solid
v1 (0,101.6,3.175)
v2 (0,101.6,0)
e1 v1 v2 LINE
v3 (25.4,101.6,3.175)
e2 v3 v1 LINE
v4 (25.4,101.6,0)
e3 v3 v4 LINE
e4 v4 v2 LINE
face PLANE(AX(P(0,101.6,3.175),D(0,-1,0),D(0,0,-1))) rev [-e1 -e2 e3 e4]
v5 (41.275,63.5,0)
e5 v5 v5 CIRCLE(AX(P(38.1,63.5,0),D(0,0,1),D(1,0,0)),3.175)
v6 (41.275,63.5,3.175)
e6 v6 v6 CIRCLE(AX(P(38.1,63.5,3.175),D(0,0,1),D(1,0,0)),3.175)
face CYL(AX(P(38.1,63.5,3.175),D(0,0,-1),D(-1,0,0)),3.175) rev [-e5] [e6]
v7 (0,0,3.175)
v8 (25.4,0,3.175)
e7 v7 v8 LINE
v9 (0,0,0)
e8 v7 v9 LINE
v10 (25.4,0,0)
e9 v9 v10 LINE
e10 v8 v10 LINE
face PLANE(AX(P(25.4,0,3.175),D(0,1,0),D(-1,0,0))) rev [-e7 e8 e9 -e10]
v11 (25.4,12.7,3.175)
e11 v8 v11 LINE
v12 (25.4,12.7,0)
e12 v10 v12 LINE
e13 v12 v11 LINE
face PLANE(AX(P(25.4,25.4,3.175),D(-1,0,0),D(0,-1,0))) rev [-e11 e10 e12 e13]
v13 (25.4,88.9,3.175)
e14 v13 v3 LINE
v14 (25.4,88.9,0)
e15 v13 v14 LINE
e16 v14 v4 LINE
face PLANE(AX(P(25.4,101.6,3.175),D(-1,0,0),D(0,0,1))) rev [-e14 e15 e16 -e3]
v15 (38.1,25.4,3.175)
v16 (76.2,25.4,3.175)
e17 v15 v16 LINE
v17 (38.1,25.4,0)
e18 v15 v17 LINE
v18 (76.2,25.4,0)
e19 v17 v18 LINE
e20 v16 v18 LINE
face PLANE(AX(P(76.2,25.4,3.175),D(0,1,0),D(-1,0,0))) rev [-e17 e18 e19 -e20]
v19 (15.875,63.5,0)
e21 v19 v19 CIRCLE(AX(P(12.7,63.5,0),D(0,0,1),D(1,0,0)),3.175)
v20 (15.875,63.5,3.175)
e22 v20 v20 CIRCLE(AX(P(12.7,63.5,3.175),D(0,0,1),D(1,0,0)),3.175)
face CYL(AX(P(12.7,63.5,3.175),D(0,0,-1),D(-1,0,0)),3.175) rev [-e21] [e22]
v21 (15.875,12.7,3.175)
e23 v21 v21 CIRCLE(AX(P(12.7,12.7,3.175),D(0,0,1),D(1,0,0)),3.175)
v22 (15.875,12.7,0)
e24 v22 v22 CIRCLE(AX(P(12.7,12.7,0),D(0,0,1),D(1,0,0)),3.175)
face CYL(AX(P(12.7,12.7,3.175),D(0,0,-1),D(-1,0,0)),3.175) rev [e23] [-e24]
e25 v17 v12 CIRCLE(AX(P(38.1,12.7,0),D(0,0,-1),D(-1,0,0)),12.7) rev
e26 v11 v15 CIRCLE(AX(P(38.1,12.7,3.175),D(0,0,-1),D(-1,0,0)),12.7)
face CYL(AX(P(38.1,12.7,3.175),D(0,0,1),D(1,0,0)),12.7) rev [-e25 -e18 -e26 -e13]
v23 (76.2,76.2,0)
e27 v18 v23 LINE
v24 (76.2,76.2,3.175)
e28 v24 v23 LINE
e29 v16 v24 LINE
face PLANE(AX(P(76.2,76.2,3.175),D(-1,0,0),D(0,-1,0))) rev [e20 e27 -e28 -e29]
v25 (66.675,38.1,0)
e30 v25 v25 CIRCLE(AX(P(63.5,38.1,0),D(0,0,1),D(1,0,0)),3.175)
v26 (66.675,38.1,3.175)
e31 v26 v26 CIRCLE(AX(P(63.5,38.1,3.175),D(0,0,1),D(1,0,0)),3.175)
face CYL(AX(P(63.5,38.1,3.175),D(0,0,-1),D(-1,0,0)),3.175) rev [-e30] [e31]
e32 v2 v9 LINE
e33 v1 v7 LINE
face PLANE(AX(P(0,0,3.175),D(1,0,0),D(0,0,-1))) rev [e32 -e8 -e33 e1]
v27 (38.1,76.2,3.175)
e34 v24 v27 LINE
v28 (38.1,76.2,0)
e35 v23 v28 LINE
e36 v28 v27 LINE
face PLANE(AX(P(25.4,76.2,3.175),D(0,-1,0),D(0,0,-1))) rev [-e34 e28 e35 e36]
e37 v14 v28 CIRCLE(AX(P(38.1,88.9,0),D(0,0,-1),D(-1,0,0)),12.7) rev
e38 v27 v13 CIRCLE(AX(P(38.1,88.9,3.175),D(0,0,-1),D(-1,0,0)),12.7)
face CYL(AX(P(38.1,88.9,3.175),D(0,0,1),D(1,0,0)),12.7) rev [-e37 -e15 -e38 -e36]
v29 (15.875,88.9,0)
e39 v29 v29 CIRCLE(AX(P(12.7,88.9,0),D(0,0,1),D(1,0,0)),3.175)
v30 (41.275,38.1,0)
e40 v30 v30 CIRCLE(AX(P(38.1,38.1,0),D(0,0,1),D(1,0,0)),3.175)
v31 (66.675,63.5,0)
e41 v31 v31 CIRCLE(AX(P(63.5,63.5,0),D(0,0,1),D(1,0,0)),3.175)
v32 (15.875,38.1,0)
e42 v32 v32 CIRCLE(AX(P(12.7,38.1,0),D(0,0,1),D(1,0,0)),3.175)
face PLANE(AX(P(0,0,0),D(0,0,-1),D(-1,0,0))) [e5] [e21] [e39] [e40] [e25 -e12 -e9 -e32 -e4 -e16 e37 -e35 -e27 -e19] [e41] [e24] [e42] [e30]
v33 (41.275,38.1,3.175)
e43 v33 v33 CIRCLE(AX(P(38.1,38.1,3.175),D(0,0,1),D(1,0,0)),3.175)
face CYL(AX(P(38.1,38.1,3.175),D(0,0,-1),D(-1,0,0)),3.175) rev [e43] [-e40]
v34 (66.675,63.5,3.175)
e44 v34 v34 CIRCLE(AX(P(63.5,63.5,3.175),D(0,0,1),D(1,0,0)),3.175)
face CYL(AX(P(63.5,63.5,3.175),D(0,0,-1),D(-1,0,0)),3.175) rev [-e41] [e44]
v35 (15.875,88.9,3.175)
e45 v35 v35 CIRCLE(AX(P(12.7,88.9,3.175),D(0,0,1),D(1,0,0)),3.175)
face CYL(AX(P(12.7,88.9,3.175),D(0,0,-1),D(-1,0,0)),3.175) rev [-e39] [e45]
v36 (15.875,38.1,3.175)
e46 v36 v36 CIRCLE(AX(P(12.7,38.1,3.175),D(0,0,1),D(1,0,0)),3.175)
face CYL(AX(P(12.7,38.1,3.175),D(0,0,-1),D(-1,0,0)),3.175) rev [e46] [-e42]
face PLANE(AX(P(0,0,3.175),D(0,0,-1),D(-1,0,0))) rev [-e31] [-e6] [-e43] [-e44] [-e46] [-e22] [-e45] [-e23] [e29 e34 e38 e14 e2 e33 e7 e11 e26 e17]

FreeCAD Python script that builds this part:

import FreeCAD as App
import Part
import Sketcher

V = App.Vector
Q = App.Units.Quantity


def edges_at(feature, points):
    """Names of the edges that pass closest to the given points."""
    edges = feature.Shape.Edges
    near = lambda p: min(range(len(edges)), key=lambda i: edges[i].distToShape(Part.Vertex(*p))[0])
    return sorted({f"Edge{near(p) + 1}" for p in points})


def add_polygon(sketch, points):
    """Adds a closed chain of lines whose ends are joined by coincident constraints."""
    first, n = sketch.GeometryCount, len(points)
    for a, b in zip(points, points[1:] + points[:1]):
        sketch.addGeometry(Part.LineSegment(App.Vector(*a, 0), App.Vector(*b, 0)), False)
    for i in range(n):
        sketch.addConstraint(Sketcher.Constraint("Coincident", first + i, 2, first + (i + 1) % n, 1))

doc = App.newDocument("Part")
params = doc.addObject("Spreadsheet::Sheet", "Params")
for row, (alias, value) in enumerate([
    ("sketch1_diameter", "0.25 in"),
    ("sketch1_width", "1 in"),
    ("sketch1_width2", "2 in"),
    ("pad1_length", "0.125 in"),
    ("fillet_radius", "0.5 in"),
], start=1):
    params.set(f"A{row}", alias)
    params.set(f"B{row}", "=" + value)
    params.setAlias(f"B{row}", alias)

body = doc.addObject("PartDesign::Body", "Body")

# Sketch on XY plane
sketch1 = doc.addObject("Sketcher::SketchObject", "Sketch")
body.addObject(sketch1)
sketch1.AttachmentSupport = (doc.XY_Plane, [""])
sketch1.MapMode = "FlatFace"
add_polygon(sketch1, [(0, 101.6), (0, 0), (25.4, 0), (25.4, 25.4), (76.2, 25.4), (76.2, 76.2), (25.4, 76.2), (25.4, 101.6)])  # lines 0-7
sketch1.addGeometry(Part.Circle(V(63.5, 38.1, 0), V(0, 0, 1), 3.2), False)  # 8
sketch1.addGeometry(Part.Circle(V(38.1, 38.1, 0), V(0, 0, 1), 3.2), False)  # 9
sketch1.addGeometry(Part.Circle(V(12.7, 12.7, 0), V(0, 0, 1), 3.2), False)  # 10
sketch1.addGeometry(Part.Circle(V(12.7, 38.1, 0), V(0, 0, 1), 3.2), False)  # 11
sketch1.addGeometry(Part.Circle(V(63.5, 63.5, 0), V(0, 0, 1), 3.2), False)  # 12
sketch1.addGeometry(Part.Circle(V(38.1, 63.5, 0), V(0, 0, 1), 3.2), False)  # 13
sketch1.addGeometry(Part.Circle(V(12.7, 63.5, 0), V(0, 0, 1), 3.2), False)  # 14
sketch1.addGeometry(Part.Circle(V(12.7, 88.9, 0), V(0, 0, 1), 3.2), False)  # 15
sketch1.addConstraint(Sketcher.Constraint("Vertical", 0))
sketch1.addConstraint(Sketcher.Constraint("Horizontal", 1))
sketch1.addConstraint(Sketcher.Constraint("Vertical", 2))
sketch1.addConstraint(Sketcher.Constraint("Horizontal", 3))
sketch1.addConstraint(Sketcher.Constraint("Vertical", 4))
sketch1.addConstraint(Sketcher.Constraint("Horizontal", 5))
sketch1.addConstraint(Sketcher.Constraint("Vertical", 6))
sketch1.addConstraint(Sketcher.Constraint("Horizontal", 7))
sketch1.addConstraint(Sketcher.Constraint("Coincident", 0, 2, -1, 1))
sketch1.addConstraint(Sketcher.Constraint("Equal", 8, 9))
sketch1.addConstraint(Sketcher.Constraint("Equal", 9, 10))
sketch1.addConstraint(Sketcher.Constraint("Equal", 10, 11))
sketch1.addConstraint(Sketcher.Constraint("Equal", 11, 12))
sketch1.addConstraint(Sketcher.Constraint("Equal", 12, 13))
sketch1.addConstraint(Sketcher.Constraint("Equal", 13, 14))
sketch1.addConstraint(Sketcher.Constraint("Equal", 14, 15))
sketch1.addConstraint(Sketcher.Constraint("Horizontal", 8, 3, 9, 3))
sketch1.addConstraint(Sketcher.Constraint("Horizontal", 9, 3, 11, 3))
sketch1.addConstraint(Sketcher.Constraint("Horizontal", 12, 3, 13, 3))
sketch1.addConstraint(Sketcher.Constraint("Horizontal", 13, 3, 14, 3))
sketch1.addConstraint(Sketcher.Constraint("Vertical", 10, 3, 11, 3))
sketch1.addConstraint(Sketcher.Constraint("Vertical", 8, 3, 12, 3))
sketch1.addConstraint(Sketcher.Constraint("Vertical", 9, 3, 13, 3))
sketch1.addConstraint(Sketcher.Constraint("Vertical", 11, 3, 14, 3))
sketch1.addConstraint(Sketcher.Constraint("Vertical", 14, 3, 15, 3))
sketch1.addConstraint(Sketcher.Constraint("Vertical", 2, 2, 5, 2))
sketch1.addConstraint(Sketcher.Constraint("Equal", 7, 2))
sketch1.addConstraint(Sketcher.Constraint("Equal", 5, 4))
sketch1.addConstraint(Sketcher.Constraint("Equal", 2, 6))
sketch1.addConstraint(Sketcher.Constraint("Diameter", 8, Q("0.25 in")))
sketch1.addConstraint(Sketcher.Constraint("DistanceX", 1, 1, 1, 2, Q("1 in")))
sketch1.addConstraint(Sketcher.Constraint("DistanceX", 3, 1, 3, 2, Q("2 in")))
sketch1.addConstraint(Sketcher.Constraint("DistanceX", 9, 3, 8, 3, Q("1 in")))
sketch1.addConstraint(Sketcher.Constraint("DistanceX", 10, 3, 9, 3, Q("1 in")))
sketch1.addConstraint(Sketcher.Constraint("DistanceY", 10, 3, 9, 3, Q("1 in")))
sketch1.addConstraint(Sketcher.Constraint("DistanceY", 8, 3, 12, 3, Q("1 in")))
sketch1.addConstraint(Sketcher.Constraint("DistanceY", 14, 3, 15, 3, Q("1 in")))
sketch1.addConstraint(Sketcher.Constraint("DistanceX", -1, 1, 8, 3, Q("2.5 in")))
sketch1.addConstraint(Sketcher.Constraint("DistanceY", -1, 1, 8, 3, Q("1.5 in")))
sketch1.setExpression("Constraints[37]", "Params.sketch1_diameter")
sketch1.setExpression("Constraints[38]", "Params.sketch1_width")
sketch1.setExpression("Constraints[39]", "Params.sketch1_width2")
pad1 = doc.addObject("PartDesign::Pad", "Pad")
body.addObject(pad1)
pad1.Profile = sketch1
pad1.setExpression("Length", "Params.pad1_length")
doc.recompute()

fillet = doc.addObject("PartDesign::Fillet", "Fillet")
body.addObject(fillet)
fillet.Base = (pad1, edges_at(pad1, [(25.4, 76.2, 1.587), (25.4, 25.4, 1.587)]))
fillet.setExpression("Radius", "Params.fillet_radius")

doc.recompute()
